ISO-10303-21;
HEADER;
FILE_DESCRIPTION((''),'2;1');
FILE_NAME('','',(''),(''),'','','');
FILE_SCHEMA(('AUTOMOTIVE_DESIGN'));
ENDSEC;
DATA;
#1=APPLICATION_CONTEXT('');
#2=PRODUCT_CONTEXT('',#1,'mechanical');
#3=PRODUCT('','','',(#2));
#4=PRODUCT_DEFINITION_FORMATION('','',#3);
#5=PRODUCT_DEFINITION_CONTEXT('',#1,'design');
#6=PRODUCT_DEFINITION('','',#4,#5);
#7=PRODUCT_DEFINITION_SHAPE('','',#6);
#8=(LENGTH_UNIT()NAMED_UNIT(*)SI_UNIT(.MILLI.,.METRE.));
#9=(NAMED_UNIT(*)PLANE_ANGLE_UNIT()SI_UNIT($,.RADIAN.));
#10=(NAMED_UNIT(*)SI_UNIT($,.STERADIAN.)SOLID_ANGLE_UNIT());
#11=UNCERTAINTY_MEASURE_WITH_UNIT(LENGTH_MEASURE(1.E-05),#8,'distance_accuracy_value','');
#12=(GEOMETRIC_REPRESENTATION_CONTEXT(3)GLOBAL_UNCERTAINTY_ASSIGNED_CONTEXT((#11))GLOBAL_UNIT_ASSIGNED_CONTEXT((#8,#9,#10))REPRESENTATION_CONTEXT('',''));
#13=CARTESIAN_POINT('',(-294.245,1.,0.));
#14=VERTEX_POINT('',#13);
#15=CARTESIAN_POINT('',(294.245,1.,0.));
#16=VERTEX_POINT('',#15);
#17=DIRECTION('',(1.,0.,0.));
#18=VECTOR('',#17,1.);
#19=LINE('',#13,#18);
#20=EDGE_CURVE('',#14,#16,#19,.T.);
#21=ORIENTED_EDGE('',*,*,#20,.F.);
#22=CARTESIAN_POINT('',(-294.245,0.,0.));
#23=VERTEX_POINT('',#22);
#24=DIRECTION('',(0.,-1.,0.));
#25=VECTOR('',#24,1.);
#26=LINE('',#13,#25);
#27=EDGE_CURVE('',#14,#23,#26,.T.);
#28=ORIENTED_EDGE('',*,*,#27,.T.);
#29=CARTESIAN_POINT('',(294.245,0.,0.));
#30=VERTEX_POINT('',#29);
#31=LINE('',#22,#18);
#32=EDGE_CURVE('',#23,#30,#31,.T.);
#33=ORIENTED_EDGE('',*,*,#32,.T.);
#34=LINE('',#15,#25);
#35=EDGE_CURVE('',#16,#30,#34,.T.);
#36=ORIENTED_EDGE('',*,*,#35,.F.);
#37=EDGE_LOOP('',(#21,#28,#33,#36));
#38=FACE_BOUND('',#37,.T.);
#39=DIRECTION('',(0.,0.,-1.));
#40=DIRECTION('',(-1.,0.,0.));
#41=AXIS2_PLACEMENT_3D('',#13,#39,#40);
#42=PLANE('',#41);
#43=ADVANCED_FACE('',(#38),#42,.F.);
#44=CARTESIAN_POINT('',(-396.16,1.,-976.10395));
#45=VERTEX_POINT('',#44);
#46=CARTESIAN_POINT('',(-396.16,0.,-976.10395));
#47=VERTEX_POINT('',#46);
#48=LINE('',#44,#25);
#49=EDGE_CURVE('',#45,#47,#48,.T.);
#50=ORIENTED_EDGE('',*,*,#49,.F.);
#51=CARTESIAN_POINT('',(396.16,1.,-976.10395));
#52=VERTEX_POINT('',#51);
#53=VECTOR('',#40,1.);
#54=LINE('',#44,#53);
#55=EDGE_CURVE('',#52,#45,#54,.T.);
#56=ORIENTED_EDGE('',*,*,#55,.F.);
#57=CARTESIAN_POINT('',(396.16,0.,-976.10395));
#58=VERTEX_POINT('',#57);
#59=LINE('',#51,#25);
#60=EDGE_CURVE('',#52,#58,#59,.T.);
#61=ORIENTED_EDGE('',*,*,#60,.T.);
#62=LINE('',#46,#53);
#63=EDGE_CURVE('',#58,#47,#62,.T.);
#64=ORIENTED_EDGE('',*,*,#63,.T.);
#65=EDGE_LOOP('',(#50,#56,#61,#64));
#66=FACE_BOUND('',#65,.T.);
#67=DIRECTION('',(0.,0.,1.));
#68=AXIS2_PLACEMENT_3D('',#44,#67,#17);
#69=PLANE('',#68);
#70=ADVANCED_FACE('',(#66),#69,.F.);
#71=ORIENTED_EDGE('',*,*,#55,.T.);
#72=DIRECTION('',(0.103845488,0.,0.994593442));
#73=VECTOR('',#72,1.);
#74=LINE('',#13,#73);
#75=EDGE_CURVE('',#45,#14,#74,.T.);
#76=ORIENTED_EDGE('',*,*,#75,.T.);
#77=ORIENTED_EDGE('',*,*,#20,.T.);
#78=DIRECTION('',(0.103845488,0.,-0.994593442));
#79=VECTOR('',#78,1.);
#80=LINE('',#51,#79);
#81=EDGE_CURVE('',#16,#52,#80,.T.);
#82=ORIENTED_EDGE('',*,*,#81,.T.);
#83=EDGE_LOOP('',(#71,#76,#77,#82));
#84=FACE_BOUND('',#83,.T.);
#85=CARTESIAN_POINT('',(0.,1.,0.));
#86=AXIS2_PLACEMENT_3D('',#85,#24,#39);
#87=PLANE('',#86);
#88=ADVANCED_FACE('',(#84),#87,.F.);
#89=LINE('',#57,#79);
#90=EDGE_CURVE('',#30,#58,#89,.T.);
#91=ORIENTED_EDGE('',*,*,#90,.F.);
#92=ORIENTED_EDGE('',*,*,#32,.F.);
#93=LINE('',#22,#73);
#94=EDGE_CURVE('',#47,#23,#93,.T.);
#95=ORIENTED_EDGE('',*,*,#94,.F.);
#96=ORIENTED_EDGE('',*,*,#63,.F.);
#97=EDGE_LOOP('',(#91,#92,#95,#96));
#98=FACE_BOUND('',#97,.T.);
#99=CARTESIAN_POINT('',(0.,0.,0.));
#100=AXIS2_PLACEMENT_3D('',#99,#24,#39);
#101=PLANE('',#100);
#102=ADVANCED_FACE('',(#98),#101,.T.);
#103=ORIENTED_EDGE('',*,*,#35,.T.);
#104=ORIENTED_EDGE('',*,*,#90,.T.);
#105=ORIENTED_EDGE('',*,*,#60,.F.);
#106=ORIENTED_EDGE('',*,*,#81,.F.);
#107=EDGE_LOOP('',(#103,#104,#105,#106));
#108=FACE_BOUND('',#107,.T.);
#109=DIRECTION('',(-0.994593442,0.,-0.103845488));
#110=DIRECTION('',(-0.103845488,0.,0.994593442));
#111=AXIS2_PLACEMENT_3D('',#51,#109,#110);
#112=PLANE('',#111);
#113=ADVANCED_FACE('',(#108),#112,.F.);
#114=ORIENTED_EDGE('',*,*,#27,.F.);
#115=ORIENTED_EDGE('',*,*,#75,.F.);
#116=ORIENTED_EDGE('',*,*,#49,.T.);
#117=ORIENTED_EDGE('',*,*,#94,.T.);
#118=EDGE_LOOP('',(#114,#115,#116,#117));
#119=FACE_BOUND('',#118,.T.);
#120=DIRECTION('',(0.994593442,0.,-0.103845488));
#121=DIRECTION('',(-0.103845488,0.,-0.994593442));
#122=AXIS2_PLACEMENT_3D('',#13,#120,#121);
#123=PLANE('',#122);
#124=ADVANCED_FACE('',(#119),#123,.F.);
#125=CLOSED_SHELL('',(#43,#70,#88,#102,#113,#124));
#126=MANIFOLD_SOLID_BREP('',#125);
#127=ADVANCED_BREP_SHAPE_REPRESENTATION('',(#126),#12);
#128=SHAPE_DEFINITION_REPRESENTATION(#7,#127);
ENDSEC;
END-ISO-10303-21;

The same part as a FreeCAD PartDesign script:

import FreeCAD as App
import Part
import Sketcher

doc = App.newDocument("Part")
params = doc.addObject("Spreadsheet::Sheet", "Params")
for row, (alias, value) in enumerate([
    ("sketch1_width", "588.49 mm"),
    ("sketch1_width2", "792.32 mm"),
    ("sketch1_length", "981.41 mm"),
    ("pad1_length", "1 mm"),
], start=1):
    params.set(f"A{row}", alias)
    params.set(f"B{row}", "=" + value)
    params.setAlias(f"B{row}", alias)

body = doc.addObject("PartDesign::Body", "Body")

# Sketch on XZ plane
sketch1 = body.newObject("Sketcher::SketchObject", "Sketch")
sketch1.AttachmentSupport = (doc.getObject("XZ_Plane"), [""])
sketch1.MapMode = "FlatFace"
sketch1.addGeometry([
    Part.LineSegment(App.Vector(-294.245, 0, 0), App.Vector(294.245, 0, 0)),
    Part.LineSegment(App.Vector(294.245, 0, 0), App.Vector(396.16, -976.10395, 0)),
    Part.LineSegment(App.Vector(396.16, -976.10395, 0), App.Vector(-396.16, -976.10395, 0)),
    Part.LineSegment(App.Vector(-396.16, -976.10395, 0), App.Vector(-294.245, 0, 0)),
], False)
sketch1.addConstraint([
    Sketcher.Constraint("Coincident", 0, 2, 1, 1),
    Sketcher.Constraint("Coincident", 1, 2, 2, 1),
    Sketcher.Constraint("Coincident", 2, 2, 3, 1),
    Sketcher.Constraint("Coincident", 3, 2, 0, 1),
    Sketcher.Constraint("Horizontal", 0),
    Sketcher.Constraint("Horizontal", 2),
    Sketcher.Constraint("Symmetric", 0, 2, 3, 2, -1, 1),
    Sketcher.Constraint("Equal", 1, 3),
    Sketcher.Constraint("DistanceX", 0, 1, 0, 2, 588.49),
    Sketcher.Constraint("DistanceX", 2, 2, 2, 1, 792.32),
    Sketcher.Constraint("Distance", 1, 981.41),
])
sketch1.setExpression("Constraints[8]", "Params.sketch1_width")
sketch1.setExpression("Constraints[9]", "Params.sketch1_width2")
sketch1.setExpression("Constraints[10]", "Params.sketch1_length")
pad1 = body.newObject("PartDesign::Pad", "Pad")
pad1.Profile = sketch1
pad1.setExpression("Length", "Params.pad1_length")
pad1.Reversed = True

doc.recompute()
